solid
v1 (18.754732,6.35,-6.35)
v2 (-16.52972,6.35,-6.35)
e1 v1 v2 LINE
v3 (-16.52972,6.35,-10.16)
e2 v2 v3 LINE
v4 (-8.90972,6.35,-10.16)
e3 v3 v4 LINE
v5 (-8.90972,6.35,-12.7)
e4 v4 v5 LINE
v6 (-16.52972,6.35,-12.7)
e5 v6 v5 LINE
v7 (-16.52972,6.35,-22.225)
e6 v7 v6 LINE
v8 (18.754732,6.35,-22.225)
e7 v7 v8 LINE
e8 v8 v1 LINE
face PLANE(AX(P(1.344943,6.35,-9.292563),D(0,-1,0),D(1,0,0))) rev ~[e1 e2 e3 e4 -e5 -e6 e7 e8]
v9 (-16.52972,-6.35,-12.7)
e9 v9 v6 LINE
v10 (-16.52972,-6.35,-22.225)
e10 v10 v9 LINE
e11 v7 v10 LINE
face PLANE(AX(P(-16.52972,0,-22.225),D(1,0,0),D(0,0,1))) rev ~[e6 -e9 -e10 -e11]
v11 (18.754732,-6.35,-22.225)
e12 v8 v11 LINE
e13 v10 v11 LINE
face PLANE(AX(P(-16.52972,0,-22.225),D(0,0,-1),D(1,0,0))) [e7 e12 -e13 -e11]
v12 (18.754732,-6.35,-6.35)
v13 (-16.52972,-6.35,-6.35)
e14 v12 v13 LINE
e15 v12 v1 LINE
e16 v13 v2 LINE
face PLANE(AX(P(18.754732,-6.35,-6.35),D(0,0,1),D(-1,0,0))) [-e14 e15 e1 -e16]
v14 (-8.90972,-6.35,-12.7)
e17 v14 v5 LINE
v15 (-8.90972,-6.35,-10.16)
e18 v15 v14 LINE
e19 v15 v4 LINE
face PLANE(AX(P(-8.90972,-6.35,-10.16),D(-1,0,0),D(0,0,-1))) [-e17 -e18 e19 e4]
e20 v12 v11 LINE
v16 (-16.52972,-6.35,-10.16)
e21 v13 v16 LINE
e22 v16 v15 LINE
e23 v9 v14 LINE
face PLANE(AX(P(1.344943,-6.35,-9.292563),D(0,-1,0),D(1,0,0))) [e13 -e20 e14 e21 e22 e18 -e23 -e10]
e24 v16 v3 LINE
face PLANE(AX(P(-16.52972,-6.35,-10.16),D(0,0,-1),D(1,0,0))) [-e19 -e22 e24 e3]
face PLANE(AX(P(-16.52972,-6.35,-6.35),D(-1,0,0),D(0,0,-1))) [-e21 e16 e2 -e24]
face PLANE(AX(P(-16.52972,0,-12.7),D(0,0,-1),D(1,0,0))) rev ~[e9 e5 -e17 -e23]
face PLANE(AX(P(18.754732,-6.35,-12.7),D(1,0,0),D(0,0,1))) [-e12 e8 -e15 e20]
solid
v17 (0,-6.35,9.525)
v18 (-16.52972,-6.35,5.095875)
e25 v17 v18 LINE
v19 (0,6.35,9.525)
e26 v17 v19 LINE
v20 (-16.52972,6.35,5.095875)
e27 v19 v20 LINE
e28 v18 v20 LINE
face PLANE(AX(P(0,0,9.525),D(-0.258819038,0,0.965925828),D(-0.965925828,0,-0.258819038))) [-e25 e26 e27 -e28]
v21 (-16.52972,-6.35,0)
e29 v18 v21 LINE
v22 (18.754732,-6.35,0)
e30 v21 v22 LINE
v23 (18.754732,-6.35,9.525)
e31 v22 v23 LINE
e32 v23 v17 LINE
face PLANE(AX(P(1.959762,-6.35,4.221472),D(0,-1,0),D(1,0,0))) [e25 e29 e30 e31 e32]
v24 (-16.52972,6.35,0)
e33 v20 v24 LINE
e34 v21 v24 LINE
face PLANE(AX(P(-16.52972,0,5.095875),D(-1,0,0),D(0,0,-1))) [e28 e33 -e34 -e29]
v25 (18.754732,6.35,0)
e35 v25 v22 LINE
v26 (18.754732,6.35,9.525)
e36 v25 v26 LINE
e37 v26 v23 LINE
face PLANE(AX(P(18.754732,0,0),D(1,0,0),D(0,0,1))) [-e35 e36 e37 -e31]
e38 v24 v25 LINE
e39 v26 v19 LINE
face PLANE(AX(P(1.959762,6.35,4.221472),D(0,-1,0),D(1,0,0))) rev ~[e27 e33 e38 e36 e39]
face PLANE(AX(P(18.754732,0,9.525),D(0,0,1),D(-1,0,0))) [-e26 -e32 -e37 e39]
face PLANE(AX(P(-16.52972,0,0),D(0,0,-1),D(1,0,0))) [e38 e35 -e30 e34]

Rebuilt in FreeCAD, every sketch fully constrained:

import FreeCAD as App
import Part
import Sketcher
Q = App.Units.Quantity


def add_polygon(sketch, points):
    """Adds a closed chain of lines whose ends are joined by coincident constraints."""
    first, n = sketch.GeometryCount, len(points)
    for a, b in zip(points, points[1:] + points[:1]):
        sketch.addGeometry(Part.LineSegment(App.Vector(*a, 0), App.Vector(*b, 0)), False)
    for i in range(n):
        sketch.addConstraint(Sketcher.Constraint("Coincident", first + i, 2, first + (i + 1) % n, 1))

doc = App.newDocument("Part")
body = doc.addObject("PartDesign::Body", "Body")

sketch1 = body.newObject("Sketcher::SketchObject", "Sketch")
sketch1.AttachmentSupport = (doc.getObject("XZ_Plane"), [""])
sketch1.MapMode = "FlatFace"
add_polygon(sketch1, [(-16.52972, 0), (18.754732, 0), (18.754732, 9.525), (0, 9.525), (-16.52972, 5.095875)])
sketch1.addConstraint([
    Sketcher.Constraint("Horizontal", 0),
    Sketcher.Constraint("Vertical", 1),
    Sketcher.Constraint("Horizontal", 2),
    Sketcher.Constraint("Vertical", 4),
    Sketcher.Constraint("PointOnObject", 0, 2, -1),
    Sketcher.Constraint("PointOnObject", 2, 2, -2),
    Sketcher.Constraint("Angle", 3, Q("-165 deg")),
    Sketcher.Constraint("DistanceY", 1, 1, 1, 2, Q("0.375 in")),
    Sketcher.Constraint("DistanceX", 0, 1, 0, 2, Q("35.284452 mm")),
    Sketcher.Constraint("DistanceX", 2, 2, 2, 1, Q("18.754732 mm")),
])
pad1 = body.newObject("PartDesign::Pad", "Pad")
pad1.Profile = sketch1
pad1.Length = Q("0.5 in")
pad1.Midplane = True
body2 = doc.addObject("PartDesign::Body", "Body001")

sketch2 = body2.newObject("Sketcher::SketchObject", "Sketch001")
sketch2.AttachmentSupport = (doc.getObject("XZ_Plane001"), [""])
sketch2.MapMode = "FlatFace"
add_polygon(sketch2, [(-16.52972, -12.7), (-16.52972, -22.225), (18.754732, -22.225), (18.754732, -12.7)])
sketch2.addConstraint([
    Sketcher.Constraint("Vertical", 0),
    Sketcher.Constraint("Horizontal", 1),
    Sketcher.Constraint("Vertical", 2),
    Sketcher.Constraint("Horizontal", 3),
    Sketcher.Constraint("DistanceY", 2, 2, -1, 1, Q("0.5 in")),
    Sketcher.Constraint("DistanceY", 0, 2, 0, 1, Q("0.375 in")),
    Sketcher.Constraint("DistanceX", 1, 1, 1, 2, Q("35.284452 mm")),
    Sketcher.Constraint("DistanceX", 0, 2, -1, 1, Q("16.52972 mm")),
])
pad2 = body2.newObject("PartDesign::Pad", "Pad001")
pad2.Profile = sketch2
pad2.Length = Q("0.5 in")
pad2.Midplane = True

sketch3 = body2.newObject("Sketcher::SketchObject", "Sketch002")
sketch3.AttachmentSupport = (doc.getObject("XZ_Plane001"), [""])
sketch3.MapMode = "FlatFace"
sketch3.AttachmentOffset = App.Placement(App.Vector(0, 0, 0.25 * 25.4), App.Rotation())
add_polygon(sketch3, [(-8.90972, -12.7), (18.754732, -12.7), (18.754732, -6.35), (-16.52972, -6.35), (-16.52972, -10.16), (-8.90972, -10.16)])
sketch3.addConstraint([
    Sketcher.Constraint("Horizontal", 0),
    Sketcher.Constraint("Vertical", 1),
    Sketcher.Constraint("Horizontal", 2),
    Sketcher.Constraint("Vertical", 3),
    Sketcher.Constraint("Horizontal", 4),
    Sketcher.Constraint("Vertical", 5),
    Sketcher.Constraint("DistanceX", 4, 1, 4, 2, Q("0.3 in")),
    Sketcher.Constraint("DistanceY", 5, 2, 5, 1, Q("0.1 in")),
    Sketcher.Constraint("DistanceY", 1, 1, 1, 2, Q("0.25 in")),
    Sketcher.Constraint("DistanceY", 0, 2, -1, 1, Q("0.5 in")),
    Sketcher.Constraint("DistanceX", 0, 1, 0, 2, Q("27.664452 mm")),
    Sketcher.Constraint("DistanceX", 2, 2, -1, 1, Q("16.52972 mm")),
])
pad3 = body2.newObject("PartDesign::Pad", "Pad002")
pad3.Profile = sketch3
pad3.Length = Q("0.5 in")
pad3.Reversed = True

doc.recompute()
